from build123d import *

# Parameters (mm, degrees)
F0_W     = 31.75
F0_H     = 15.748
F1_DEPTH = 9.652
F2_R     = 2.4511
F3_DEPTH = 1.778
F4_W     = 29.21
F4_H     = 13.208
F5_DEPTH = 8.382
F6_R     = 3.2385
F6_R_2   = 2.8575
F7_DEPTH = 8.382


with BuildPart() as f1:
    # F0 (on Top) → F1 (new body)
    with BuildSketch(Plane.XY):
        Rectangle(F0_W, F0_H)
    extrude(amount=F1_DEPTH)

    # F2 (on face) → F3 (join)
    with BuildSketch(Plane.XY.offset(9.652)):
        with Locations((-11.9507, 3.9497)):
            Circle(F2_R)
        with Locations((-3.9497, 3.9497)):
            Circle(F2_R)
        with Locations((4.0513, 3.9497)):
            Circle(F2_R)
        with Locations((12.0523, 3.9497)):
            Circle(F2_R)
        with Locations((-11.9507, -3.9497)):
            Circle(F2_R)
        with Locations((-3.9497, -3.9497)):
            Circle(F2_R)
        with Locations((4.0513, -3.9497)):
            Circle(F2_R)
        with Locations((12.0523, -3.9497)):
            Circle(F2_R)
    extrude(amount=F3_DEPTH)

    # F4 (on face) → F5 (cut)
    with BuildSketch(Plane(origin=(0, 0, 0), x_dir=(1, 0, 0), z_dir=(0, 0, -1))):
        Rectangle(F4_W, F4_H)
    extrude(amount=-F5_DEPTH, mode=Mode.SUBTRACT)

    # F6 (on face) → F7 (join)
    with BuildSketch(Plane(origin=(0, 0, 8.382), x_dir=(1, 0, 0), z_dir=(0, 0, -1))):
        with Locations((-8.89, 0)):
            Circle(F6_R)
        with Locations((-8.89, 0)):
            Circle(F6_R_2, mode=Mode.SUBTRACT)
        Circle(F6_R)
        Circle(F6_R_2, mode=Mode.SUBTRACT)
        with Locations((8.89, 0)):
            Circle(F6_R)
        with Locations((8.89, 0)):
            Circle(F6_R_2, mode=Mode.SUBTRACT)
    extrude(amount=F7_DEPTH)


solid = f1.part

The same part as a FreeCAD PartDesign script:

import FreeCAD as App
import Part
import Sketcher
Q = App.Units.Quantity

doc = App.newDocument("Part")
body = doc.addObject("PartDesign::Body", "Body")

# Sketch on XY plane
sketch1 = body.newObject("Sketcher::SketchObject", "Sketch")
sketch1.AttachmentSupport = (doc.getObject("XY_Plane"), [""])
sketch1.MapMode = "FlatFace"
sketch1.addGeometry(Part.LineSegment(App.Vector(-16, 8, 0), App.Vector(-16, -8, 0)), False)
sketch1.addGeometry(Part.LineSegment(App.Vector(-16, -8, 0), App.Vector(16, -8, 0)), False)
sketch1.addGeometry(Part.LineSegment(App.Vector(16, -8, 0), App.Vector(16, 8, 0)), False)
sketch1.addGeometry(Part.LineSegment(App.Vector(16, 8, 0), App.Vector(-16, 8, 0)), False)
sketch1.addConstraint(Sketcher.Constraint("Coincident", 0, 2, 1, 1))
sketch1.addConstraint(Sketcher.Constraint("Coincident", 1, 2, 2, 1))
sketch1.addConstraint(Sketcher.Constraint("Coincident", 2, 2, 3, 1))
sketch1.addConstraint(Sketcher.Constraint("Coincident", 3, 2, 0, 1))
sketch1.addConstraint(Sketcher.Constraint("Vertical", 0))
sketch1.addConstraint(Sketcher.Constraint("Horizontal", 1))
sketch1.addConstraint(Sketcher.Constraint("Vertical", 2))
sketch1.addConstraint(Sketcher.Constraint("Horizontal", 3))
sketch1.addConstraint(Sketcher.Constraint("Symmetric", 0, 2, 2, 2, -1, 1))
sketch1.addConstraint(Sketcher.Constraint("DistanceX", 1, 1, 1, 2, Q("1.25 in")))
sketch1.addConstraint(Sketcher.Constraint("DistanceY", 0, 2, 0, 1, Q("0.62 in")))
pad1 = body.newObject("PartDesign::Pad", "Pad")
pad1.Profile = sketch1
pad1.Length = Q("0.38 in")

# Sketch on XY plane
sketch2 = body.newObject("Sketcher::SketchObject", "Sketch001")
sketch2.AttachmentSupport = (doc.getObject("XY_Plane"), [""])
sketch2.MapMode = "FlatFace"
sketch2.AttachmentOffset = App.Placement(App.Vector(0, 0, 0.38 * 25.4), App.Rotation())
sketch2.addGeometry(Part.Circle(App.Vector(-12, 3.9, 0), App.Vector(0, 0, 1), 2.5), False)
sketch2.addGeometry(Part.Circle(App.Vector(-3.9, 3.9, 0), App.Vector(0, 0, 1), 2.5), False)
sketch2.addGeometry(Part.Circle(App.Vector(4.1, 3.9, 0), App.Vector(0, 0, 1), 2.5), False)
sketch2.addGeometry(Part.Circle(App.Vector(12.1, 3.9, 0), App.Vector(0, 0, 1), 2.5), False)
sketch2.addGeometry(Part.Circle(App.Vector(-12, -3.9, 0), App.Vector(0, 0, 1), 2.5), False)
sketch2.addGeometry(Part.Circle(App.Vector(-3.9, -3.9, 0), App.Vector(0, 0, 1), 2.5), False)
sketch2.addGeometry(Part.Circle(App.Vector(4.1, -3.9, 0), App.Vector(0, 0, 1), 2.5), False)
sketch2.addGeometry(Part.Circle(App.Vector(12.1, -3.9, 0), App.Vector(0, 0, 1), 2.5), False)
sketch2.addConstraint(Sketcher.Constraint("Equal", 0, 1))
sketch2.addConstraint(Sketcher.Constraint("Equal", 1, 2))
sketch2.addConstraint(Sketcher.Constraint("Equal", 2, 3))
sketch2.addConstraint(Sketcher.Constraint("Equal", 3, 4))
sketch2.addConstraint(Sketcher.Constraint("Equal", 4, 5))
sketch2.addConstraint(Sketcher.Constraint("Equal", 5, 6))
sketch2.addConstraint(Sketcher.Constraint("Equal", 6, 7))
sketch2.addConstraint(Sketcher.Constraint("Symmetric", 0, 3, 4, 3, -1))
sketch2.addConstraint(Sketcher.Constraint("Symmetric", 1, 3, 5, 3, -1))
sketch2.addConstraint(Sketcher.Constraint("Symmetric", 2, 3, 6, 3, -1))
sketch2.addConstraint(Sketcher.Constraint("Symmetric", 3, 3, 7, 3, -1))
sketch2.addConstraint(Sketcher.Constraint("Horizontal", 0, 3, 1, 3))
sketch2.addConstraint(Sketcher.Constraint("Horizontal", 1, 3, 2, 3))
sketch2.addConstraint(Sketcher.Constraint("Horizontal", 2, 3, 3, 3))
sketch2.addConstraint(Sketcher.Constraint("Diameter", 0, Q("0.193 in")))
sketch2.addConstraint(Sketcher.Constraint("DistanceX", 0, 3, 2, 3, Q("0.63 in")))
sketch2.addConstraint(Sketcher.Constraint("DistanceX", 1, 3, 3, 3, Q("0.63 in")))
sketch2.addConstraint(Sketcher.Constraint("DistanceX", 0, 3, 1, 3, Q("0.315 in")))
sketch2.addConstraint(Sketcher.Constraint("DistanceY", 4, 3, 0, 3, Q("0.311 in")))
sketch2.addConstraint(Sketcher.Constraint("DistanceX", 0, 3, -1, 1, Q("0.4705 in")))
pad2 = body.newObject("PartDesign::Pad", "Pad001")
pad2.Profile = sketch2
pad2.Length = Q("0.07 in")

# Sketch on XY plane
sketch3 = body.newObject("Sketcher::SketchObject", "Sketch002")
sketch3.AttachmentSupport = (doc.getObject("XY_Plane"), [""])
sketch3.MapMode = "FlatFace"
sketch3.addGeometry(Part.LineSegment(App.Vector(-15, -7, 0), App.Vector(-15, 7, 0)), False)
sketch3.addGeometry(Part.LineSegment(App.Vector(-15, 7, 0), App.Vector(15, 7, 0)), False)
sketch3.addGeometry(Part.LineSegment(App.Vector(15, 7, 0), App.Vector(15, -7, 0)), False)
sketch3.addGeometry(Part.LineSegment(App.Vector(15, -7, 0), App.Vector(-15, -7, 0)), False)
sketch3.addConstraint(Sketcher.Constraint("Coincident", 0, 2, 1, 1))
sketch3.addConstraint(Sketcher.Constraint("Coincident", 1, 2, 2, 1))
sketch3.addConstraint(Sketcher.Constraint("Coincident", 2, 2, 3, 1))
sketch3.addConstraint(Sketcher.Constraint("Coincident", 3, 2, 0, 1))
sketch3.addConstraint(Sketcher.Constraint("Vertical", 0))
sketch3.addConstraint(Sketcher.Constraint("Horizontal", 1))
sketch3.addConstraint(Sketcher.Constraint("Vertical", 2))
sketch3.addConstraint(Sketcher.Constraint("Horizontal", 3))
sketch3.addConstraint(Sketcher.Constraint("Symmetric", 0, 2, 2, 2, -1, 1))
sketch3.addConstraint(Sketcher.Constraint("DistanceX", 1, 1, 1, 2, Q("1.15 in")))
sketch3.addConstraint(Sketcher.Constraint("DistanceY", 0, 1, 0, 2, Q("0.52 in")))
pocket1 = body.newObject("PartDesign::Pocket", "Pocket")
pocket1.Profile = sketch3
pocket1.Length = Q("0.33 in")
pocket1.Reversed = True

# Sketch on XY plane
sketch4 = body.newObject("Sketcher::SketchObject", "Sketch003")
sketch4.AttachmentSupport = (doc.getObject("XY_Plane"), [""])
sketch4.MapMode = "FlatFace"
sketch4.AttachmentOffset = App.Placement(App.Vector(0, 0, 0.33 * 25.4), App.Rotation())
sketch4.addGeometry(Part.Circle(App.Vector(-8.9, 0, 0), App.Vector(0, 0, 1), 3.2), False)
sketch4.addGeometry(Part.Circle(App.Vector(-8.9, 0, 0), App.Vector(0, 0, 1), 2.9), False)
sketch4.addGeometry(Part.Circle(App.Vector(0, 0, 0), App.Vector(0, 0, 1), 3.2), False)
sketch4.addGeometry(Part.Circle(App.Vector(0, 0, 0), App.Vector(0, 0, 1), 2.9), False)
sketch4.addGeometry(Part.Circle(App.Vector(8.9, 0, 0), App.Vector(0, 0, 1), 3.2), False)
sketch4.addGeometry(Part.Circle(App.Vector(8.9, 0, 0), App.Vector(0, 0, 1), 2.9), False)
sketch4.addConstraint(Sketcher.Constraint("Coincident", 2, 3, -1, 1))
sketch4.addConstraint(Sketcher.Constraint("Coincident", 3, 3, -1, 1))
sketch4.addConstraint(Sketcher.Constraint("Coincident", 1, 3, 0, 3))
sketch4.addConstraint(Sketcher.Constraint("Coincident", 5, 3, 4, 3))
sketch4.addConstraint(Sketcher.Constraint("Equal", 0, 2))
sketch4.addConstraint(Sketcher.Constraint("Equal", 1, 3))
sketch4.addConstraint(Sketcher.Constraint("Equal", 2, 4))
sketch4.addConstraint(Sketcher.Constraint("Equal", 3, 5))
sketch4.addConstraint(Sketcher.Constraint("Symmetric", 0, 3, 4, 3, -1, 1))
sketch4.addConstraint(Sketcher.Constraint("PointOnObject", 0, 3, -1))
sketch4.addConstraint(Sketcher.Constraint("Diameter", 0, Q("0.255 in")))
sketch4.addConstraint(Sketcher.Constraint("Diameter", 1, Q("0.225 in")))
sketch4.addConstraint(Sketcher.Constraint("DistanceX", 0, 3, 4, 3, Q("0.7 in")))
pad3 = body.newObject("PartDesign::Pad", "Pad002")
pad3.Profile = sketch4
pad3.Length = Q("0.33 in")
pad3.Reversed = True

doc.recompute()
